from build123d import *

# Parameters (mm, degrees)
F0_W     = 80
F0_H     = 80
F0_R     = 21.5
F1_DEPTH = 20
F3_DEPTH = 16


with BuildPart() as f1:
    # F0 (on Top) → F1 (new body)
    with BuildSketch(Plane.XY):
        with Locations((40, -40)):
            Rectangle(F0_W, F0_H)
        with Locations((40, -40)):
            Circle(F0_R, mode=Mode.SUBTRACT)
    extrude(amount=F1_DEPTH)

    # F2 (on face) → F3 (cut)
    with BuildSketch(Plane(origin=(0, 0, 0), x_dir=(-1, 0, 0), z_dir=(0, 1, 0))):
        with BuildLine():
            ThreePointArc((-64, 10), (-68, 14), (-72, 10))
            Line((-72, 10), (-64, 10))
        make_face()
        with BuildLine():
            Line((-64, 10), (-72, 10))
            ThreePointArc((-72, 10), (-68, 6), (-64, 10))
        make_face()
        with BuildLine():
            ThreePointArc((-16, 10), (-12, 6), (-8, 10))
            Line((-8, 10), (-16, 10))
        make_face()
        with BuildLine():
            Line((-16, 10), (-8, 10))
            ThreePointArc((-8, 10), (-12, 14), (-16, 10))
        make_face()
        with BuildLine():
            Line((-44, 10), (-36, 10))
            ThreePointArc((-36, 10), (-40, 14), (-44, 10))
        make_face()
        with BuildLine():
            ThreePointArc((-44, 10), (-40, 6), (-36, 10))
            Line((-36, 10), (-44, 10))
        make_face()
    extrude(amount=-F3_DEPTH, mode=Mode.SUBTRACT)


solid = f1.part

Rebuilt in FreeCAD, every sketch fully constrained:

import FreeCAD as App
import Part
import Sketcher

V = App.Vector
Q = App.Units.Quantity

doc = App.newDocument("Part")
params = doc.addObject("Spreadsheet::Sheet", "Params")
for row, (alias, value) in enumerate([
    ("sketch1_diameter", "43 mm"),
    ("sketch1_width", "80 mm"),
    ("pad1_length", "20 mm"),
    ("sketch2_diameter", "8 mm"),
    ("pocket1_length", "16 mm"),
], start=1):
    params.set(f"A{row}", alias)
    params.set(f"B{row}", "=" + value)
    params.setAlias(f"B{row}", alias)

body = doc.addObject("PartDesign::Body", "Body")

# Sketch on XY plane
sketch1 = body.newObject("Sketcher::SketchObject", "Sketch")
sketch1.AttachmentSupport = (doc.getObject("XY_Plane"), [""])
sketch1.MapMode = "FlatFace"
sketch1.addGeometry([
    Part.LineSegment(V(0, 0, 0), V(0, -80, 0)),  # 0
    Part.LineSegment(V(0, -80, 0), V(80, -80, 0)),  # 1
    Part.LineSegment(V(80, -80, 0), V(80, 0, 0)),  # 2
    Part.LineSegment(V(80, 0, 0), V(0, 0, 0)),  # 3
    Part.Circle(V(40, -40, 0), V(0, 0, 1), 22),  # 4
], False)
sketch1.addConstraint([
    Sketcher.Constraint("Coincident", 0, 2, 1, 1),
    Sketcher.Constraint("Coincident", 1, 2, 2, 1),
    Sketcher.Constraint("Coincident", 2, 2, 3, 1),
    Sketcher.Constraint("Coincident", 3, 2, 0, 1),
    Sketcher.Constraint("Vertical", 0),
    Sketcher.Constraint("Horizontal", 1),
    Sketcher.Constraint("Vertical", 2),
    Sketcher.Constraint("Horizontal", 3),
    Sketcher.Constraint("Coincident", 3, 2, -1, 1),
    Sketcher.Constraint("Equal", 3, 0),
    Sketcher.Constraint("Diameter", 4, Q("43 mm")),
    Sketcher.Constraint("DistanceX", 1, 1, 1, 2, Q("80 mm")),
    Sketcher.Constraint("DistanceX", -1, 1, 4, 3, Q("40 mm")),
    Sketcher.Constraint("DistanceY", 4, 3, -1, 1, Q("40 mm")),
])
sketch1.setExpression("Constraints[10]", "Params.sketch1_diameter")
sketch1.setExpression("Constraints[11]", "Params.sketch1_width")
pad1 = body.newObject("PartDesign::Pad", "Pad")
pad1.Profile = sketch1
pad1.setExpression("Length", "Params.pad1_length")

# Sketch on XZ plane
sketch2 = body.newObject("Sketcher::SketchObject", "Sketch001")
sketch2.AttachmentSupport = (doc.getObject("XZ_Plane"), [""])
sketch2.MapMode = "FlatFace"
sketch2.addGeometry([
    Part.Circle(V(68, 10, 0), V(0, 0, 1), 4),
    Part.Circle(V(12, 10, 0), V(0, 0, 1), 4),
    Part.Circle(V(40, 10, 0), V(0, 0, 1), 4),
], False)
sketch2.addConstraint([
    Sketcher.Constraint("Equal", 0, 1),
    Sketcher.Constraint("Equal", 1, 2),
    Sketcher.Constraint("Horizontal", 0, 3, 1, 3),
    Sketcher.Constraint("Horizontal", 1, 3, 2, 3),
    Sketcher.Constraint("Diameter", 0, Q("8 mm")),
    Sketcher.Constraint("DistanceX", -1, 1, 0, 3, Q("68 mm")),
    Sketcher.Constraint("DistanceY", -1, 1, 0, 3, Q("10 mm")),
    Sketcher.Constraint("DistanceX", -1, 1, 1, 3, Q("12 mm")),
    Sketcher.Constraint("DistanceX", -1, 1, 2, 3, Q("40 mm")),
])
sketch2.setExpression("Constraints[4]", "Params.sketch2_diameter")
pocket1 = body.newObject("PartDesign::Pocket", "Pocket")
pocket1.Profile = sketch2
pocket1.setExpression("Length", "Params.pocket1_length")
pocket1.Reversed = True

doc.recompute()
